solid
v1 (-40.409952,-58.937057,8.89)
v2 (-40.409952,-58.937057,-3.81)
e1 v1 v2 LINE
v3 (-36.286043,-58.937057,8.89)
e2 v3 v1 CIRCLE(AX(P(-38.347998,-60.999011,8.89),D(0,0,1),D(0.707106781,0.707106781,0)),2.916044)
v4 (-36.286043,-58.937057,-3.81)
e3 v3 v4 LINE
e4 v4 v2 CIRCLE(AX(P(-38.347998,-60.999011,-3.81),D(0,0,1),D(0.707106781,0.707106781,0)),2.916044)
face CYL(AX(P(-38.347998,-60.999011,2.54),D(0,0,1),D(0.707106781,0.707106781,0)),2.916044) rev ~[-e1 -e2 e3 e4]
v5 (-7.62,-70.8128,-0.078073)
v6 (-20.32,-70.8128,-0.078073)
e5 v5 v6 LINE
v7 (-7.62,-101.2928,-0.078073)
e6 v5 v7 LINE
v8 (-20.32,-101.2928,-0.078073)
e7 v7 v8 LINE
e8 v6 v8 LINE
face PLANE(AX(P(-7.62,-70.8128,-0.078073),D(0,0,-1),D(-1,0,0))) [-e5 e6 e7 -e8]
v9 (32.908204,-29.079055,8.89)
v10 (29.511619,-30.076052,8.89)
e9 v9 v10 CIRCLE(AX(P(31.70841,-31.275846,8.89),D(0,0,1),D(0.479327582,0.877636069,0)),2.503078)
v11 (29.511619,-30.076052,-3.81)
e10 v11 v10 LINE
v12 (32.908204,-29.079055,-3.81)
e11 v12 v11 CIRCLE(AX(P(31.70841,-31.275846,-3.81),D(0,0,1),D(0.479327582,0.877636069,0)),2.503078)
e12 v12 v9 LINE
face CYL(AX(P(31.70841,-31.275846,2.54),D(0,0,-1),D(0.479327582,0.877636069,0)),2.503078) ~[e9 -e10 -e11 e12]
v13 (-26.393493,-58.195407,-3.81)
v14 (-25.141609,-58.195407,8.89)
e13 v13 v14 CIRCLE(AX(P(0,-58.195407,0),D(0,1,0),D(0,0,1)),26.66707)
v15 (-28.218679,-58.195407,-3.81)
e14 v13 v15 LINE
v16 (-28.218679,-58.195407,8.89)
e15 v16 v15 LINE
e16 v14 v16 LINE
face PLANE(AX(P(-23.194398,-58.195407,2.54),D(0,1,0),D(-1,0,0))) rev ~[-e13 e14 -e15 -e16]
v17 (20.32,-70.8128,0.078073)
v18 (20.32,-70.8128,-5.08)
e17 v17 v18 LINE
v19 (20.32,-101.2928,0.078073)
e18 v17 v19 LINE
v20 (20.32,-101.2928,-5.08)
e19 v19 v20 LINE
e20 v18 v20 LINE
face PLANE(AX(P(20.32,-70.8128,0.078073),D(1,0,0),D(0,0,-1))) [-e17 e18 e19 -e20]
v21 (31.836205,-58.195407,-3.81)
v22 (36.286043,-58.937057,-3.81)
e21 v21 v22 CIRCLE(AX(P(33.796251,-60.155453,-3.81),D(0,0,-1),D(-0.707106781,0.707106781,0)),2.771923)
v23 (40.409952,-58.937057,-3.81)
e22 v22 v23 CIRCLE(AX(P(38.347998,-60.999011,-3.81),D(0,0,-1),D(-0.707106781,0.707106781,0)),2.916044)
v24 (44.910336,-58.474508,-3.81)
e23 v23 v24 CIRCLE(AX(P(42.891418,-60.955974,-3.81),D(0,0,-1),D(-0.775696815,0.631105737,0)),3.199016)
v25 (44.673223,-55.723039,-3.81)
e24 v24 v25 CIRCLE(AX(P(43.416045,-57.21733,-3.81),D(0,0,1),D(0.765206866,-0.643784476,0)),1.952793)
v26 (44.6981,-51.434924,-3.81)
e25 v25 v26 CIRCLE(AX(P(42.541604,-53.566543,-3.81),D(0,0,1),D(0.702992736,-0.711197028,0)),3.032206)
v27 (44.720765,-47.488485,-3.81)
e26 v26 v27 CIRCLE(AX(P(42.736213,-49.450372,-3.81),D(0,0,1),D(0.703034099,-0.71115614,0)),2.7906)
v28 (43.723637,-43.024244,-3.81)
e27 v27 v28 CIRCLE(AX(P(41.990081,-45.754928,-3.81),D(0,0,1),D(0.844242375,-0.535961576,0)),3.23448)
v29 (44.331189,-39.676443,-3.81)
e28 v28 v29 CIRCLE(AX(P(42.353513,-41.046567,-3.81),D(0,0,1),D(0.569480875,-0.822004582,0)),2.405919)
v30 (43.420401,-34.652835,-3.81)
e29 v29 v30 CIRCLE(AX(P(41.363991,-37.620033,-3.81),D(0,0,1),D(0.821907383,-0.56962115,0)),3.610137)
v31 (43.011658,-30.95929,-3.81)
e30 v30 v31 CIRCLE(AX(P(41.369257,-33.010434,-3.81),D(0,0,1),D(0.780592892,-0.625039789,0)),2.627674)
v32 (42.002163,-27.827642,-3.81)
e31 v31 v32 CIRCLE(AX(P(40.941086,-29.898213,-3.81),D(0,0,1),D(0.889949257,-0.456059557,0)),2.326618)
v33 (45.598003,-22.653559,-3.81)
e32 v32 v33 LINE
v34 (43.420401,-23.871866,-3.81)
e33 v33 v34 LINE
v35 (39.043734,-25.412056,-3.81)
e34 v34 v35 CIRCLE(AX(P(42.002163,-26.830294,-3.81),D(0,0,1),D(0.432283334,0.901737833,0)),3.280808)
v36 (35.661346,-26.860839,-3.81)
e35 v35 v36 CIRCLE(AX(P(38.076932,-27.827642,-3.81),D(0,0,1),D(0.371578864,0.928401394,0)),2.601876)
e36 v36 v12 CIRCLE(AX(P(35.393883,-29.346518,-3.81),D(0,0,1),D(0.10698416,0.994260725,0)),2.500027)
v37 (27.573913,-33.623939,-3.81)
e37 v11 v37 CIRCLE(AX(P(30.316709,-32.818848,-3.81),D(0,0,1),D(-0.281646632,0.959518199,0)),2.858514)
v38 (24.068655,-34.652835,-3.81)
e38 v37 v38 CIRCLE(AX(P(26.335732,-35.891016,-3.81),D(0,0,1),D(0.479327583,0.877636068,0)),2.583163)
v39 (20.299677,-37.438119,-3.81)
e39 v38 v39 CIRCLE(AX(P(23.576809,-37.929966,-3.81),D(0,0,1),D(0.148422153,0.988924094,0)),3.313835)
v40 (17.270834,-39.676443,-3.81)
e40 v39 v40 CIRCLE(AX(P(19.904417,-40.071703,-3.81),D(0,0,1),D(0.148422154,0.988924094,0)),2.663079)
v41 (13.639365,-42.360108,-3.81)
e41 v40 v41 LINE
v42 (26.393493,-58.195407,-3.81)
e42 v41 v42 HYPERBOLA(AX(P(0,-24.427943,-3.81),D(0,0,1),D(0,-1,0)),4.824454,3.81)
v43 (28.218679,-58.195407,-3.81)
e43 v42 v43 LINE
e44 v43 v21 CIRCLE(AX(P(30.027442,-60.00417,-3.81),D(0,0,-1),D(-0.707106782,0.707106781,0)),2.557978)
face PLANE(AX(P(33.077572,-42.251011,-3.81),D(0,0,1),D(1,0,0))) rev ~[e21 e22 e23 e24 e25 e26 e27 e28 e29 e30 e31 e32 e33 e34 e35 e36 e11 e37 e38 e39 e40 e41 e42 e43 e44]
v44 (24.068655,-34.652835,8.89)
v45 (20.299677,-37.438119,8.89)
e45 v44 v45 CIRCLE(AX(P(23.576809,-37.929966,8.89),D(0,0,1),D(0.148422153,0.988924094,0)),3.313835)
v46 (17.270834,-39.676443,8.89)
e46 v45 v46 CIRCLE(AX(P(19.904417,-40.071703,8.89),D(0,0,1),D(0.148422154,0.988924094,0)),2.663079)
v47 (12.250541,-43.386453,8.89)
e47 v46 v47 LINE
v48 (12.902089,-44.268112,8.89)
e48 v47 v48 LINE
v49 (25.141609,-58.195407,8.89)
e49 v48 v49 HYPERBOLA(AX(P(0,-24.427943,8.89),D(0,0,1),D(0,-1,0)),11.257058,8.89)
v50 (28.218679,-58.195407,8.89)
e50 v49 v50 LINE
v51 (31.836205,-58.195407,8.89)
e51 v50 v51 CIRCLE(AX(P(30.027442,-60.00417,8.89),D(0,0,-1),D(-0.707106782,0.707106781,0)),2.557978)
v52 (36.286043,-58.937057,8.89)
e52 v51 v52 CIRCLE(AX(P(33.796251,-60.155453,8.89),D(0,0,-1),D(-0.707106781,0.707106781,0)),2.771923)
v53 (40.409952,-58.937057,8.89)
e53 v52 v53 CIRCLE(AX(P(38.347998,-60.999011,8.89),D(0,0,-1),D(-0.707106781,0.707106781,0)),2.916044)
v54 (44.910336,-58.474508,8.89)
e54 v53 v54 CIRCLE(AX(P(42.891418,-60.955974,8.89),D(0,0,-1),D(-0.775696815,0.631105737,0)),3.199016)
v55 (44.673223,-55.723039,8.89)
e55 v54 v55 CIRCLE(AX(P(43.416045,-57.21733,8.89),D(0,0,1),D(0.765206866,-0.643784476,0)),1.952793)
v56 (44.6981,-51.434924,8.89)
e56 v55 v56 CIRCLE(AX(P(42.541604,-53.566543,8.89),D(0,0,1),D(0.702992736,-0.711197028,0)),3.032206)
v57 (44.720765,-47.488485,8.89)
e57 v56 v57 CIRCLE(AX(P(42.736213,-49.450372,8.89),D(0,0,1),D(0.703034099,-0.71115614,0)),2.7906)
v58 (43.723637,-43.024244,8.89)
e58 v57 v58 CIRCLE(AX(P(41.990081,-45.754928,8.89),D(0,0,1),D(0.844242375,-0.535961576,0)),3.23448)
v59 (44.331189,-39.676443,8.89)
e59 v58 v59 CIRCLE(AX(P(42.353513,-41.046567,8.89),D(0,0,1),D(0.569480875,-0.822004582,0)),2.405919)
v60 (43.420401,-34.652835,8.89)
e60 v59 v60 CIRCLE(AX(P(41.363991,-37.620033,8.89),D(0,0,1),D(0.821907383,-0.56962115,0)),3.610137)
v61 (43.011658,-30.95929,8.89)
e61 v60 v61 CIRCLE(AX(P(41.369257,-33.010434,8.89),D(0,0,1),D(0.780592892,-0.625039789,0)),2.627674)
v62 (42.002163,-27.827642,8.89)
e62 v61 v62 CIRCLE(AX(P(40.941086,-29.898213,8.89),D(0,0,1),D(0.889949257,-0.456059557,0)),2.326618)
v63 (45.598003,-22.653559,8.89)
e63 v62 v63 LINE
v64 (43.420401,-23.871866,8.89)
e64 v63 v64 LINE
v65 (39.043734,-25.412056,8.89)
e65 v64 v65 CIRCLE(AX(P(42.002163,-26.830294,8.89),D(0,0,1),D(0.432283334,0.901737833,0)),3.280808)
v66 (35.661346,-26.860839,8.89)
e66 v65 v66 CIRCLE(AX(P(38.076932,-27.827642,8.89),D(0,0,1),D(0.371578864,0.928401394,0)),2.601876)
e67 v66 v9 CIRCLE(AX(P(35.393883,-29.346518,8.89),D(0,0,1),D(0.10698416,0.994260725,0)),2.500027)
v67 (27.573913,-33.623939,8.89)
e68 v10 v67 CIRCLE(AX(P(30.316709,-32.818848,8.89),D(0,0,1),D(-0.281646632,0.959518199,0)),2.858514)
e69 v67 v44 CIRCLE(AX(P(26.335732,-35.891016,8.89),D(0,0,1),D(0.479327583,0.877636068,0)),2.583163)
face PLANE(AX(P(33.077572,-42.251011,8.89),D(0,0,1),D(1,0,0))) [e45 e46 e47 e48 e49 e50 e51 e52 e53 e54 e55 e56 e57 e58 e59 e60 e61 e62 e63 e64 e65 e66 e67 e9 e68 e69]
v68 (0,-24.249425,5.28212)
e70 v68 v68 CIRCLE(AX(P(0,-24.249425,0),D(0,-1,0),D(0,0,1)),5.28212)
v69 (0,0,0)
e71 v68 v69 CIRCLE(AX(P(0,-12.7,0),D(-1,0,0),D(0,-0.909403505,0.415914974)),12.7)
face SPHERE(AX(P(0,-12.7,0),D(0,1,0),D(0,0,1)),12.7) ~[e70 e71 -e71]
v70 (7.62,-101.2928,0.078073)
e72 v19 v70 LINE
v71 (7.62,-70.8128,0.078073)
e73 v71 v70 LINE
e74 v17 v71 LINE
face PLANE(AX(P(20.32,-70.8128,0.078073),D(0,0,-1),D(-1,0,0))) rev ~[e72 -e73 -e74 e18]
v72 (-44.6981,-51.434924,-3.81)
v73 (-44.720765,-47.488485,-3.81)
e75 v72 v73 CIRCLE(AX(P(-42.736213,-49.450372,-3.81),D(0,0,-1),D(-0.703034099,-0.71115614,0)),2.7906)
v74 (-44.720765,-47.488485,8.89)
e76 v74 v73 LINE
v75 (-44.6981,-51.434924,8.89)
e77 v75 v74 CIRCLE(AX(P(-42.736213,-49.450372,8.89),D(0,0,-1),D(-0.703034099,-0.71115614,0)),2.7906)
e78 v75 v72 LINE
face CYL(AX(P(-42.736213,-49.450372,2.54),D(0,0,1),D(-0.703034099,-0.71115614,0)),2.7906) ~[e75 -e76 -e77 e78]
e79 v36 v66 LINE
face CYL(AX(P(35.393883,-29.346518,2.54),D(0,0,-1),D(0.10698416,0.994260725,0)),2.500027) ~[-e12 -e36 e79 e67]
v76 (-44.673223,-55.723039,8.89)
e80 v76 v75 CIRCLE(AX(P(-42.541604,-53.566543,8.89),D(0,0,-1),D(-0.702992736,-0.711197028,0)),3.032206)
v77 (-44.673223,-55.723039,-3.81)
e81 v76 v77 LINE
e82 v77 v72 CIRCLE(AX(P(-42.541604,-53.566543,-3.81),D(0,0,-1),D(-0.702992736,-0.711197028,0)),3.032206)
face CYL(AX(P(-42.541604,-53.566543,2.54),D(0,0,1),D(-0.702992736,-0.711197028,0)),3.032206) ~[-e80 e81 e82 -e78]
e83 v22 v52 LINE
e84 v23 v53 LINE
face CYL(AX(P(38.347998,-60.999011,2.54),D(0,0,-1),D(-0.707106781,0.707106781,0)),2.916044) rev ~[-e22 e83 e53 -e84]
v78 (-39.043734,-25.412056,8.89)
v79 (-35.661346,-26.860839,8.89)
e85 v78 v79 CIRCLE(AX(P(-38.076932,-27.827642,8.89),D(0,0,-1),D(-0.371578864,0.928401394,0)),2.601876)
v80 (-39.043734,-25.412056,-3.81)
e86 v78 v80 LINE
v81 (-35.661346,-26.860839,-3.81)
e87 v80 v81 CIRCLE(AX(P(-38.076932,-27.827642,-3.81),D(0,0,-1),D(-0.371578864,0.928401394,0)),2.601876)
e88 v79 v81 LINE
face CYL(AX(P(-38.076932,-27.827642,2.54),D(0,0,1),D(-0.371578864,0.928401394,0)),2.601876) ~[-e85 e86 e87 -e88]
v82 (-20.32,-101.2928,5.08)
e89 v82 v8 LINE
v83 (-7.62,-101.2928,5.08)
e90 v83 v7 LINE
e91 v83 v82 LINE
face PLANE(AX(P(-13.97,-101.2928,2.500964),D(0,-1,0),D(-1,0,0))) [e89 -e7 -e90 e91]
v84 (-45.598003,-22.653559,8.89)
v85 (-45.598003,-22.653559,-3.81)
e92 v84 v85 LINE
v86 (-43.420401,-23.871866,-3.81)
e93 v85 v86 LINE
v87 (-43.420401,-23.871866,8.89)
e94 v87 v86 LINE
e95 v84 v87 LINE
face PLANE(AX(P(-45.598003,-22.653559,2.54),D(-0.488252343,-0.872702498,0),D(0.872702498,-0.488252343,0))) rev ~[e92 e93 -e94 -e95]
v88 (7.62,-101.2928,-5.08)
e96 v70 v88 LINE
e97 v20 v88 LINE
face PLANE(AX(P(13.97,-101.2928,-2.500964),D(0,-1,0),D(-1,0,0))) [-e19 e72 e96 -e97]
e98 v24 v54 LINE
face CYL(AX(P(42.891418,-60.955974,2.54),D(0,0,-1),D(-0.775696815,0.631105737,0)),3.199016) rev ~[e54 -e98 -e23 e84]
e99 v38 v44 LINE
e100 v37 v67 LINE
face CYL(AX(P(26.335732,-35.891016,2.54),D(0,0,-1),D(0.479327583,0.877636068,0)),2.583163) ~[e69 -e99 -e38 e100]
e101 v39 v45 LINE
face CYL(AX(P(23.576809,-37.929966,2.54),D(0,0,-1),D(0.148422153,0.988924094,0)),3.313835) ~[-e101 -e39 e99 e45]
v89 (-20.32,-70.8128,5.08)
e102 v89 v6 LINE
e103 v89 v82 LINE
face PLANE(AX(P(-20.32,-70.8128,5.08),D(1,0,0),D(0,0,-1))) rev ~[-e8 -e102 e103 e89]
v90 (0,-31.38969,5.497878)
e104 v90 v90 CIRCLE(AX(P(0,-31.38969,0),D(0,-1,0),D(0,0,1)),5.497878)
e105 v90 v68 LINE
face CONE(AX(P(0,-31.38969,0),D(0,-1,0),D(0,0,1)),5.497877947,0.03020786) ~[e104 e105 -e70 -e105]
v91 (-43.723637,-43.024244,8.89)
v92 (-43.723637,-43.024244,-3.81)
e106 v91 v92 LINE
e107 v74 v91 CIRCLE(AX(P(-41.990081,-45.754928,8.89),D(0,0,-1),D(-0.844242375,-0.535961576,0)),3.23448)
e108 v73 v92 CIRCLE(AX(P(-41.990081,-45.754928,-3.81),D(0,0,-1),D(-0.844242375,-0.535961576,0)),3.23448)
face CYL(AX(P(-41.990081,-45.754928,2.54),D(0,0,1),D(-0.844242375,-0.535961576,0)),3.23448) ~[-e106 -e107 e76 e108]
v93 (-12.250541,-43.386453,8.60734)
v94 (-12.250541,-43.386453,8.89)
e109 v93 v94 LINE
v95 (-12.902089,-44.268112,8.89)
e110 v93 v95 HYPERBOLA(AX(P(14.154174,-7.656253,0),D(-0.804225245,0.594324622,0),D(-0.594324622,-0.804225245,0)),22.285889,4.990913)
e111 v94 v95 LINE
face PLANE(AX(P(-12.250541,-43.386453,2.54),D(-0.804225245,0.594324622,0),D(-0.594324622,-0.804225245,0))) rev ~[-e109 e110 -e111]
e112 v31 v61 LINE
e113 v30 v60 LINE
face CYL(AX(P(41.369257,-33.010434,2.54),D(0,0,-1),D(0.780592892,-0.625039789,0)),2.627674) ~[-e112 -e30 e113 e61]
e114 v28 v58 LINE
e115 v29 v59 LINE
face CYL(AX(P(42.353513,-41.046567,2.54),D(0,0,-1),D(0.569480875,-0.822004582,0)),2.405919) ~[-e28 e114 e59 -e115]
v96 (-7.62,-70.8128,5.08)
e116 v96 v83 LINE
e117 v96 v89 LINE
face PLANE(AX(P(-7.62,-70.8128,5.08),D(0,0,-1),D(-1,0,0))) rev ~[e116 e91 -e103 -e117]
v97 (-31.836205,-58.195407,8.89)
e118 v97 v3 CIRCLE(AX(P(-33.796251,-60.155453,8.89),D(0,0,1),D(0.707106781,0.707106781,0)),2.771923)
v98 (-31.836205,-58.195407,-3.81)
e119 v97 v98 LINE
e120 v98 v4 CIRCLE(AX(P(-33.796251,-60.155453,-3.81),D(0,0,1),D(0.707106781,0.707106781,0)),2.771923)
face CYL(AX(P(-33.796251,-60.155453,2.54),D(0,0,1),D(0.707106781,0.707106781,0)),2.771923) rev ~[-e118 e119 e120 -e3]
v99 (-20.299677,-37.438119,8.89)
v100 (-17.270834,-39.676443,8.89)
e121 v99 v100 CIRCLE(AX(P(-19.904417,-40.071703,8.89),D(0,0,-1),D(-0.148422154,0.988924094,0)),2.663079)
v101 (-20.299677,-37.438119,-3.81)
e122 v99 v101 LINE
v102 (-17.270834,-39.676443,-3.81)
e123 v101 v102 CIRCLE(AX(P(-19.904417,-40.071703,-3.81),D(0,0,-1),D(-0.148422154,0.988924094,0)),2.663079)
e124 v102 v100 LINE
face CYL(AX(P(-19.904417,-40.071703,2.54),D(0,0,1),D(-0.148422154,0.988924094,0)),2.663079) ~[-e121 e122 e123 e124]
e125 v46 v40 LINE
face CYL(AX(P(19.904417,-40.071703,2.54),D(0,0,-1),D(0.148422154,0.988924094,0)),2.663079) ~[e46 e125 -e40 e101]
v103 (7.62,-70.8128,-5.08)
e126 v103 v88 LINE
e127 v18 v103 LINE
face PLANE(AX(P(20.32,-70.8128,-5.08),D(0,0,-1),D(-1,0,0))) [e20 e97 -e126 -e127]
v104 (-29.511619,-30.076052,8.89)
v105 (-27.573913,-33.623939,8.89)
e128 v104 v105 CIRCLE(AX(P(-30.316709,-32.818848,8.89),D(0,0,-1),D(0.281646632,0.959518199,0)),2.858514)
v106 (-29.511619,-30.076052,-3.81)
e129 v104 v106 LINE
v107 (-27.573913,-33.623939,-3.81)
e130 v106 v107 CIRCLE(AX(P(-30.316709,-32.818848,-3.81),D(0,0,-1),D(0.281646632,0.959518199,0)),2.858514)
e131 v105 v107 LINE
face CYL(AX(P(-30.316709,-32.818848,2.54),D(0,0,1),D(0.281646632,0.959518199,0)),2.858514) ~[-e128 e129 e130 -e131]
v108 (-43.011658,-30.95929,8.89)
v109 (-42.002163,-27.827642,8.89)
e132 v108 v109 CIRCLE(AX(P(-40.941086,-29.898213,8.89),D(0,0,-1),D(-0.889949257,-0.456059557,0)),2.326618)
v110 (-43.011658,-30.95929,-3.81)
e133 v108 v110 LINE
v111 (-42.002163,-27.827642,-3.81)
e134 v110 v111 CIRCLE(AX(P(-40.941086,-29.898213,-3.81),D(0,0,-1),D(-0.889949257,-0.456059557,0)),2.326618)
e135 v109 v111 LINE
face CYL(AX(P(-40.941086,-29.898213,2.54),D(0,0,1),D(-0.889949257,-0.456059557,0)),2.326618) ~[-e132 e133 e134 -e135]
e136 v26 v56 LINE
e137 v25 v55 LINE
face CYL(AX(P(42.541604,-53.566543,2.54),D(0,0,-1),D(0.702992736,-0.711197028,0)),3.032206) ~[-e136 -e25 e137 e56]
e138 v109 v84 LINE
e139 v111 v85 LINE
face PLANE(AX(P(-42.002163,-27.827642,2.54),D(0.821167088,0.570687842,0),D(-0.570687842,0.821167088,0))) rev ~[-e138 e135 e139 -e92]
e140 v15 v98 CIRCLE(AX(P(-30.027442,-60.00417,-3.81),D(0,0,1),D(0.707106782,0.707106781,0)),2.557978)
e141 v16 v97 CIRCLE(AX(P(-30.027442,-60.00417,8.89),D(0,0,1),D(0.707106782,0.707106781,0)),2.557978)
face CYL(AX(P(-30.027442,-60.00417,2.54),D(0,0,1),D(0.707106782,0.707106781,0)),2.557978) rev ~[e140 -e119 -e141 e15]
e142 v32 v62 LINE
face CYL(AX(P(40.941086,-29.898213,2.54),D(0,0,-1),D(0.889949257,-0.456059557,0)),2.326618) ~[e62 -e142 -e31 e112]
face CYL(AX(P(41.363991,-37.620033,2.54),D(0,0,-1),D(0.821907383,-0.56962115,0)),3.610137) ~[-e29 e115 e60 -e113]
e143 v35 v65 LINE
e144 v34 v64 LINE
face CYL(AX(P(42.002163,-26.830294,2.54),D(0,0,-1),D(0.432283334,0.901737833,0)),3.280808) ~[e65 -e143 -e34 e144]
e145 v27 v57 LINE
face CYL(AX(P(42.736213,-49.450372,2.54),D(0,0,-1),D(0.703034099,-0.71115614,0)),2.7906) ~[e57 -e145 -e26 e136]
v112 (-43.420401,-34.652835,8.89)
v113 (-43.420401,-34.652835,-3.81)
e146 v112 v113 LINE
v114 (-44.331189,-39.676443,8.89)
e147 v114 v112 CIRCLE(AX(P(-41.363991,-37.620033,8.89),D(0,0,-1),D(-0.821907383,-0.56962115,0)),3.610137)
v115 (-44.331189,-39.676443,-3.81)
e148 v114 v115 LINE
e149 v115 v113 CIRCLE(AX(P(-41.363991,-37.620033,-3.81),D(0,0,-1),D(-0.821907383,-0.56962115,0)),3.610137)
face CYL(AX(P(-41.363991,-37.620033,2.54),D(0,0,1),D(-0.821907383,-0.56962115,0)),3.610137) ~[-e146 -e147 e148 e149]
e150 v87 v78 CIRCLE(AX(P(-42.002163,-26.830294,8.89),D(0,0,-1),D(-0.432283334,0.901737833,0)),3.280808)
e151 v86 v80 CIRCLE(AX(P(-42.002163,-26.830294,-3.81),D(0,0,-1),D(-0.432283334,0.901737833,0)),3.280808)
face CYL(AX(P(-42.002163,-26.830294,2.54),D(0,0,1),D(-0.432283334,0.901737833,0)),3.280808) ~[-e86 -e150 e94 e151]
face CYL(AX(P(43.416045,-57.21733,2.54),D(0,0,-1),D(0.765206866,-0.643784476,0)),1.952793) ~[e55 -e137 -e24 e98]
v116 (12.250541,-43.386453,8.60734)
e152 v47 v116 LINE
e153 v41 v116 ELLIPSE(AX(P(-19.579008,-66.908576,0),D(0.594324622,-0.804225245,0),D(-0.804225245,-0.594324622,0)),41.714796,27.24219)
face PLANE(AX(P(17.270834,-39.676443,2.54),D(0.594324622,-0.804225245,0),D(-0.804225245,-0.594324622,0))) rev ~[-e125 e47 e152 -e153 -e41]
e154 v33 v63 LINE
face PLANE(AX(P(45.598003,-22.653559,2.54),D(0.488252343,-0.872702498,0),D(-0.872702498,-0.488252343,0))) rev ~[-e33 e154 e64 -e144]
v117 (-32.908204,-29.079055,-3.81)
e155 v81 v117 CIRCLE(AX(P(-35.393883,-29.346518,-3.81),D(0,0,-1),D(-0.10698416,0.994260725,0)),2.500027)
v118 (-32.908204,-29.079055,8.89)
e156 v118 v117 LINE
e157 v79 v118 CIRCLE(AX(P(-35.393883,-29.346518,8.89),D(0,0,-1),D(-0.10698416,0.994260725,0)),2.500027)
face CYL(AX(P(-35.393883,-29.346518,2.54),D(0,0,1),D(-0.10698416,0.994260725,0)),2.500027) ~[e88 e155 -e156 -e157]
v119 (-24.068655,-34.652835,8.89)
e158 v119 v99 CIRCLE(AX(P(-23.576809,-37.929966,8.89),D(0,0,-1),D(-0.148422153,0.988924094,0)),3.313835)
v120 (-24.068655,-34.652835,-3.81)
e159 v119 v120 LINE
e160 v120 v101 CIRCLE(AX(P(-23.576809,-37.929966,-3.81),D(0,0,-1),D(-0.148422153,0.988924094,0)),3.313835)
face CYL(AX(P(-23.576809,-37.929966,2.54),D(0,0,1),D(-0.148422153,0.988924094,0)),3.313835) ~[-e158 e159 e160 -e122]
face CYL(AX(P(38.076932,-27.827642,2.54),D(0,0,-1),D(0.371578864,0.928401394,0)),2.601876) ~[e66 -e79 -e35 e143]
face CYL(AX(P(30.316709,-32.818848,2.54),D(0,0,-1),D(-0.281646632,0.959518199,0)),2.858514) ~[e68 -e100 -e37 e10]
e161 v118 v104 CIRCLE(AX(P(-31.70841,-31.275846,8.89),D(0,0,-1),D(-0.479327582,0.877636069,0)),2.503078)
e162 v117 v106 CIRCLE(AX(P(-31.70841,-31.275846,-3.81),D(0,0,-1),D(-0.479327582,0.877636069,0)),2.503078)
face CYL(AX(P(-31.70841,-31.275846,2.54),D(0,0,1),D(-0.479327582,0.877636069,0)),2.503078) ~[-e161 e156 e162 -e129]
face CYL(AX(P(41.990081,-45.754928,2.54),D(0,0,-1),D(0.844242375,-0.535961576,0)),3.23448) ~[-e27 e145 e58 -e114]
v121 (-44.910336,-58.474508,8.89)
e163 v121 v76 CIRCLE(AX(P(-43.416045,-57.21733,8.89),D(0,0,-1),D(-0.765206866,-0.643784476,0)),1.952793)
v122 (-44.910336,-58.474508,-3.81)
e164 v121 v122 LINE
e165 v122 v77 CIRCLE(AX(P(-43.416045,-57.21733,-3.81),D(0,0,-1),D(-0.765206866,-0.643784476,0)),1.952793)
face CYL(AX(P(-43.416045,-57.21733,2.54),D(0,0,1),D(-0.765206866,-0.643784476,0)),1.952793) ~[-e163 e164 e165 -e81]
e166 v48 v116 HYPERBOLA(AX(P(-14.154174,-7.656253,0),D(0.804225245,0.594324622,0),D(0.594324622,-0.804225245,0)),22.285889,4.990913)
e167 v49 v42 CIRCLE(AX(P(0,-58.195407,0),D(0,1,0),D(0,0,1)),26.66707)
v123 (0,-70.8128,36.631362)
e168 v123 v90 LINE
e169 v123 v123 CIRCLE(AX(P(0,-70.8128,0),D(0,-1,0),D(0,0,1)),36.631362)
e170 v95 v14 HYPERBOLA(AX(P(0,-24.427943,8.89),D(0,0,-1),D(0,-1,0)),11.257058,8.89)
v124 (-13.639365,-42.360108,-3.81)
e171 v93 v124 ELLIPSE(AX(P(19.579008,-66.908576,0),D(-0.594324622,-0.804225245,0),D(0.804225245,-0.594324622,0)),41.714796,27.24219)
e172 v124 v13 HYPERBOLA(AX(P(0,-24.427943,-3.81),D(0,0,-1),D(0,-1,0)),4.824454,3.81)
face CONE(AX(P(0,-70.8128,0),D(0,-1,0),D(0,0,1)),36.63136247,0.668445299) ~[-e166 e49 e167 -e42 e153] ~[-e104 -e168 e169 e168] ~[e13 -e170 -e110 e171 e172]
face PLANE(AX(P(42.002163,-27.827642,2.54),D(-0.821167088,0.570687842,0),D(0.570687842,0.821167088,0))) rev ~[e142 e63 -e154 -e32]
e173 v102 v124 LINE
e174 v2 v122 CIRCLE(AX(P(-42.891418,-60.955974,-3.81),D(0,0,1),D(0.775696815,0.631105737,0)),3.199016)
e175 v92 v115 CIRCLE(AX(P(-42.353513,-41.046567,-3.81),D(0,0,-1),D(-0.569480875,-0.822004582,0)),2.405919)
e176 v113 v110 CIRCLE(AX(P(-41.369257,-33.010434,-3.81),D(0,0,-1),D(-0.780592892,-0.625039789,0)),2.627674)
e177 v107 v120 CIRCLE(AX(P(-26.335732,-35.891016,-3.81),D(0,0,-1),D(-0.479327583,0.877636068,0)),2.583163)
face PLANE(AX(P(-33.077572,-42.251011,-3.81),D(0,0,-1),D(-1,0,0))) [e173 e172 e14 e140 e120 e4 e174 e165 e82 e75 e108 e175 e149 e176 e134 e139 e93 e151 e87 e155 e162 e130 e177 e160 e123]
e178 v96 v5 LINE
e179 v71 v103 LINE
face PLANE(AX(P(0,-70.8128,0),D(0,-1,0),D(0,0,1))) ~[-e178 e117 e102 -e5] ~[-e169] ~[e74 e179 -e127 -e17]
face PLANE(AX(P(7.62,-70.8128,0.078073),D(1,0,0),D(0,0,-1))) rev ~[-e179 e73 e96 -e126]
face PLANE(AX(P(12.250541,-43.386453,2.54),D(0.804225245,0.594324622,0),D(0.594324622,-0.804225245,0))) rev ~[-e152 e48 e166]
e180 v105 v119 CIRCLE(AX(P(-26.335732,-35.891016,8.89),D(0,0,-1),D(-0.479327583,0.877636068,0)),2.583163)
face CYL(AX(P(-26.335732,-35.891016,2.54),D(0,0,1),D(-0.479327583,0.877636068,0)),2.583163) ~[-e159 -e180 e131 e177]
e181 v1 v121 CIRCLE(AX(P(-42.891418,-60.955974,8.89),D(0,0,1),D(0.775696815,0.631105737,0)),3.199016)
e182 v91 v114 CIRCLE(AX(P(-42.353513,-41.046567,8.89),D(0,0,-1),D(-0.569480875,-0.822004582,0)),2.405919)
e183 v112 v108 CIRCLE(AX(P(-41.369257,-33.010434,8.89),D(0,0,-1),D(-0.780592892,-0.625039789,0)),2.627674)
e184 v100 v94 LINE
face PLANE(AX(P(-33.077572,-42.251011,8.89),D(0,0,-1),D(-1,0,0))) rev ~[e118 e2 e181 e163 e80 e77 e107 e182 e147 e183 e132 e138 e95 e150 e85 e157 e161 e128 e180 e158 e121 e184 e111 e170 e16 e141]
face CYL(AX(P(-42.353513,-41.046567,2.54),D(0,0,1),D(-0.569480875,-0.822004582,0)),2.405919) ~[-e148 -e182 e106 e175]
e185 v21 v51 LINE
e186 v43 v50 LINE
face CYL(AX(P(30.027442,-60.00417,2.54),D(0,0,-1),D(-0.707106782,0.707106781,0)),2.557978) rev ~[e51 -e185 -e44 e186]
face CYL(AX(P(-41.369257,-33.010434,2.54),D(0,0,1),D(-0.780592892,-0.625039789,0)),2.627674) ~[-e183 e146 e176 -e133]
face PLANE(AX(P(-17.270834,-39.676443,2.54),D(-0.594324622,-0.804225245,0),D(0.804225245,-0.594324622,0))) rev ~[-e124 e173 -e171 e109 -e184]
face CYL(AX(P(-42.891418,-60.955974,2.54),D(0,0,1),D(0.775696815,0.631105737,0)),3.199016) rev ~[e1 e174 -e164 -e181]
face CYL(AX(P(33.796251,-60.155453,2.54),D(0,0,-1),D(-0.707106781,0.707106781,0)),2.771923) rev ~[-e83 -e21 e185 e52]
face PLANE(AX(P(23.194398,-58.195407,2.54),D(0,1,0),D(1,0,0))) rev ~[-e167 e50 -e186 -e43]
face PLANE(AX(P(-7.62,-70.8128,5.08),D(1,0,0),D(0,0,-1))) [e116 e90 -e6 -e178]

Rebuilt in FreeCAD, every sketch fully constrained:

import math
import FreeCAD as App
import Part
import Sketcher

V = App.Vector
Q = App.Units.Quantity


def add_polygon(sketch, points):
    """Adds a closed chain of lines whose ends are joined by coincident constraints."""
    first, n = sketch.GeometryCount, len(points)
    for a, b in zip(points, points[1:] + points[:1]):
        sketch.addGeometry(Part.LineSegment(App.Vector(*a, 0), App.Vector(*b, 0)), False)
    for i in range(n):
        sketch.addConstraint(Sketcher.Constraint("Coincident", first + i, 2, first + (i + 1) % n, 1))

doc = App.newDocument("Part")
params = doc.addObject("Spreadsheet::Sheet", "Params")
for row, (alias, value) in enumerate([
    ("sketch1_radius", "0.5 in"),
    ("revolution_angle", "360 deg"),
    ("sketch2_width", "0.5 in"),
    ("pad1_length", "1.2 in"),
    ("pad2_length", "0.5 in"),
], start=1):
    params.set(f"A{row}", alias)
    params.set(f"B{row}", "=" + value)
    params.setAlias(f"B{row}", alias)

body = doc.addObject("PartDesign::Body", "Body")

# Sketch on XY plane
sketch1 = body.newObject("Sketcher::SketchObject", "Sketch")
sketch1.AttachmentSupport = (doc.getObject("XY_Plane"), [""])
sketch1.MapMode = "FlatFace"
sketch1.addGeometry(Part.LineSegment(V(5.497878, -31.38969, 0), V(5.28212, -24.249425, 0)), False)
sketch1.addGeometry(Part.ArcOfCircle(Part.Circle(V(0, -12.7, 0), V(0, 0, 1), 12.7), math.radians(-65.42305), math.radians(90)), False)
sketch1.addGeometry(Part.LineSegment(V(0, 0, 0), V(0, -70.8128, 0)), False)
sketch1.addGeometry(Part.LineSegment(V(0, -70.8128, 0), V(36.631362, -70.8128, 0)), False)
sketch1.addGeometry(Part.LineSegment(V(36.631362, -70.8128, 0), V(5.497878, -31.38969, 0)), False)
sketch1.addConstraint(Sketcher.Constraint("Coincident", 0, 2, 1, 1))
sketch1.addConstraint(Sketcher.Constraint("Coincident", 1, 2, 2, 1))
sketch1.addConstraint(Sketcher.Constraint("Coincident", 2, 2, 3, 1))
sketch1.addConstraint(Sketcher.Constraint("Coincident", 3, 2, 4, 1))
sketch1.addConstraint(Sketcher.Constraint("Coincident", 4, 2, 0, 1))
sketch1.addConstraint(Sketcher.Constraint("Vertical", 2))
sketch1.addConstraint(Sketcher.Constraint("Horizontal", 3))
sketch1.addConstraint(Sketcher.Constraint("Coincident", 1, 2, -1, 1))
sketch1.addConstraint(Sketcher.Constraint("PointOnObject", 1, 3, -2))
sketch1.addConstraint(Sketcher.Constraint("Radius", 1, Q("0.5 in")))
sketch1.addConstraint(Sketcher.Constraint("DistanceY", 2, 2, 2, 1, 70.8128))
sketch1.addConstraint(Sketcher.Constraint("DistanceX", 3, 1, 3, 2, 36.631362))
sketch1.addConstraint(Sketcher.Constraint("DistanceX", -1, 1, 0, 2, 5.28212))
sketch1.addConstraint(Sketcher.Constraint("DistanceY", 4, 2, -1, 1, 31.38969))
sketch1.addConstraint(Sketcher.Constraint("Distance", 0, 7.143525))
sketch1.setExpression("Constraints[9]", "Params.sketch1_radius")
revolution = body.newObject("PartDesign::Revolution", "Revolution")
revolution.Profile = sketch1
revolution.ReferenceAxis = (sketch1, ["V_Axis"])
revolution.setExpression("Angle", "Params.revolution_angle")

# Sketch on XZ plane
sketch2 = body.newObject("Sketcher::SketchObject", "Sketch001")
sketch2.AttachmentSupport = (doc.getObject("XZ_Plane"), [""])
sketch2.MapMode = "FlatFace"
sketch2.AttachmentOffset = App.Placement(V(0, 0, 70.8128), App.Rotation())
add_polygon(sketch2, [(-7.62, -0.078073), (-7.62, 5.08), (-20.32, 5.08), (-20.32, -0.078073)])  # lines 0-3
add_polygon(sketch2, [(20.32, -5.08), (20.32, 0.078073), (7.62, 0.078073), (7.62, -5.08)])  # lines 4-7
sketch2.addConstraint(Sketcher.Constraint("Vertical", 0))
sketch2.addConstraint(Sketcher.Constraint("Horizontal", 1))
sketch2.addConstraint(Sketcher.Constraint("Vertical", 2))
sketch2.addConstraint(Sketcher.Constraint("Horizontal", 3))
sketch2.addConstraint(Sketcher.Constraint("Vertical", 4))
sketch2.addConstraint(Sketcher.Constraint("Horizontal", 5))
sketch2.addConstraint(Sketcher.Constraint("Vertical", 6))
sketch2.addConstraint(Sketcher.Constraint("Horizontal", 7))
sketch2.addConstraint(Sketcher.Constraint("Symmetric", 2, 2, 4, 2, -1, 1))
sketch2.addConstraint(Sketcher.Constraint("Symmetric", 0, 2, 6, 2, -1, 1))
sketch2.addConstraint(Sketcher.Constraint("DistanceX", 1, 2, 1, 1, Q("0.5 in")))
sketch2.addConstraint(Sketcher.Constraint("DistanceX", 0, 2, -1, 1, Q("0.3 in")))
sketch2.addConstraint(Sketcher.Constraint("DistanceY", -1, 1, 0, 2, Q("0.2 in")))
sketch2.addConstraint(Sketcher.Constraint("DistanceY", 0, 1, 0, 2, 5.158073))
sketch2.setExpression("Constraints[18]", "Params.sketch2_width")
pad1 = body.newObject("PartDesign::Pad", "Pad")
pad1.Profile = sketch2
pad1.setExpression("Length", "Params.pad1_length")

# Sketch on XY plane
sketch3 = body.newObject("Sketcher::SketchObject", "Sketch002")
sketch3.AttachmentSupport = (doc.getObject("XY_Plane"), [""])
sketch3.MapMode = "FlatFace"
sketch3.AttachmentOffset = App.Placement(V(0, 0, 0.1 * 25.4), App.Rotation())
sketch3.addGeometry(Part.LineSegment(V(23.194398, -58.195407, 0), V(28.218679, -58.195407, 0)), False)
sketch3.addGeometry(Part.ArcOfCircle(Part.Circle(V(30.027442, -60.00417, 0), V(0, 0, 1), 2.557978), math.radians(45), math.radians(135)), False)
sketch3.addGeometry(Part.ArcOfCircle(Part.Circle(V(33.796251, -60.155453, 0), V(0, 0, 1), 2.771923), math.radians(26.075108), math.radians(135)), False)
sketch3.addGeometry(Part.ArcOfCircle(Part.Circle(V(38.347998, -60.999011, 0), V(0, 0, 1), 2.916044), math.radians(45), math.radians(135)), False)
sketch3.addGeometry(Part.ArcOfCircle(Part.Circle(V(42.891418, -60.955974, 0), V(0, 0, 1), 3.199016), math.radians(50.868251), math.radians(140.868251)), False)
sketch3.addGeometry(Part.ArcOfCircle(Part.Circle(V(43.416045, -57.21733, 0), V(0, 0, 1), 1.952793), math.radians(-40.074601), math.radians(49.925399)), False)
sketch3.addGeometry(Part.ArcOfCircle(Part.Circle(V(42.541604, -53.566543, 0), V(0, 0, 1), 3.032206), math.radians(-45.332392), math.radians(44.667607)), False)
sketch3.addGeometry(Part.ArcOfCircle(Part.Circle(V(42.736213, -49.450372, 0), V(0, 0, 1), 2.7906), math.radians(-45.32906), math.radians(44.67094)), False)
sketch3.addGeometry(Part.ArcOfCircle(Part.Circle(V(41.990081, -45.754928, 0), V(0, 0, 1), 3.23448), math.radians(-32.409147), math.radians(57.590853)), False)
sketch3.addGeometry(Part.ArcOfCircle(Part.Circle(V(42.353513, -41.046567, 0), V(0, 0, 1), 2.405919), math.radians(-55.285966), math.radians(34.714034)), False)
sketch3.addGeometry(Part.ArcOfCircle(Part.Circle(V(41.363991, -37.620033, 0), V(0, 0, 1), 3.610137), math.radians(-34.723812), math.radians(55.276188)), False)
sketch3.addGeometry(Part.ArcOfCircle(Part.Circle(V(41.369257, -33.010434, 0), V(0, 0, 1), 2.627674), math.radians(-38.685108), math.radians(51.314892)), False)
sketch3.addGeometry(Part.ArcOfCircle(Part.Circle(V(40.941086, -29.898213, 0), V(0, 0, 1), 2.326618), math.radians(-27.133129), math.radians(62.866871)), False)
sketch3.addGeometry(Part.LineSegment(V(42.002163, -27.827642, 0), V(45.598003, -22.653559, 0)), False)
sketch3.addGeometry(Part.LineSegment(V(45.598003, -22.653559, 0), V(43.420401, -23.871866, 0)), False)
sketch3.addGeometry(Part.ArcOfCircle(Part.Circle(V(42.002163, -26.830294, 0), V(0, 0, 1), 3.280808), math.radians(64.387446), math.radians(154.387446)), False)
sketch3.addGeometry(Part.ArcOfCircle(Part.Circle(V(38.076932, -27.827642, 0), V(0, 0, 1), 2.601876), math.radians(68.186977), math.radians(158.186977)), False)
sketch3.addGeometry(Part.ArcOfCircle(Part.Circle(V(35.393883, -29.346518, 0), V(0, 0, 1), 2.500027), math.radians(83.858505), math.radians(173.858505)), False)
sketch3.addGeometry(Part.ArcOfCircle(Part.Circle(V(31.70841, -31.275846, 0), V(0, 0, 1), 2.503078), math.radians(61.358505), math.radians(151.358505)), False)
sketch3.addGeometry(Part.ArcOfCircle(Part.Circle(V(30.316709, -32.818848, 0), V(0, 0, 1), 2.858514), math.radians(106.358505), math.radians(196.358505)), False)
sketch3.addGeometry(Part.ArcOfCircle(Part.Circle(V(26.335732, -35.891016, 0), V(0, 0, 1), 2.583163), math.radians(61.358505), math.radians(151.358505)), False)
sketch3.addGeometry(Part.ArcOfCircle(Part.Circle(V(23.576809, -37.929966, 0), V(0, 0, 1), 3.313835), math.radians(81.464501), math.radians(171.464501)), False)
sketch3.addGeometry(Part.ArcOfCircle(Part.Circle(V(19.904417, -40.071703, 0), V(0, 0, 1), 2.663079), math.radians(81.464501), math.radians(171.464501)), False)
sketch3.addGeometry(Part.LineSegment(V(17.270834, -39.676443, 0), V(12.250541, -43.386453, 0)), False)
sketch3.addGeometry(Part.LineSegment(V(12.250541, -43.386453, 0), V(23.194398, -58.195407, 0)), False)
sketch3.addGeometry(Part.LineSegment(V(-28.218679, -58.195407, 0), V(-23.194398, -58.195407, 0)), False)
sketch3.addGeometry(Part.LineSegment(V(-23.194398, -58.195407, 0), V(-12.250541, -43.386453, 0)), False)
sketch3.addGeometry(Part.LineSegment(V(-12.250541, -43.386453, 0), V(-17.270834, -39.676443, 0)), False)
sketch3.addGeometry(Part.ArcOfCircle(Part.Circle(V(-19.904417, -40.071703, 0), V(0, 0, 1), 2.663079), math.radians(8.535499), math.radians(98.535499)), False)
sketch3.addGeometry(Part.ArcOfCircle(Part.Circle(V(-23.576809, -37.929966, 0), V(0, 0, 1), 3.313835), math.radians(8.535499), math.radians(98.535499)), False)
sketch3.addGeometry(Part.ArcOfCircle(Part.Circle(V(-26.335732, -35.891016, 0), V(0, 0, 1), 2.583163), math.radians(28.641495), math.radians(118.641495)), False)
sketch3.addGeometry(Part.ArcOfCircle(Part.Circle(V(-30.316709, -32.818848, 0), V(0, 0, 1), 2.858514), math.radians(-16.358505), math.radians(73.641495)), False)
sketch3.addGeometry(Part.ArcOfCircle(Part.Circle(V(-31.70841, -31.275846, 0), V(0, 0, 1), 2.503078), math.radians(28.641495), math.radians(118.641495)), False)
sketch3.addGeometry(Part.ArcOfCircle(Part.Circle(V(-35.393883, -29.346518, 0), V(0, 0, 1), 2.500027), math.radians(6.141495), math.radians(96.141495)), False)
sketch3.addGeometry(Part.ArcOfCircle(Part.Circle(V(-38.076932, -27.827642, 0), V(0, 0, 1), 2.601876), math.radians(21.813023), math.radians(111.813023)), False)
sketch3.addGeometry(Part.ArcOfCircle(Part.Circle(V(-42.002163, -26.830294, 0), V(0, 0, 1), 3.280808), math.radians(25.612554), math.radians(115.612554)), False)
sketch3.addGeometry(Part.LineSegment(V(-43.420401, -23.871866, 0), V(-45.598003, -22.653559, 0)), False)
sketch3.addGeometry(Part.LineSegment(V(-45.598003, -22.653559, 0), V(-42.002163, -27.827642, 0)), False)
sketch3.addGeometry(Part.ArcOfCircle(Part.Circle(V(-40.941086, -29.898213, 0), V(0, 0, 1), 2.326618), math.radians(117.133129), math.radians(207.133129)), False)
sketch3.addGeometry(Part.ArcOfCircle(Part.Circle(V(-41.369257, -33.010434, 0), V(0, 0, 1), 2.627674), math.radians(128.685108), math.radians(218.685108)), False)
sketch3.addGeometry(Part.ArcOfCircle(Part.Circle(V(-41.363991, -37.620033, 0), V(0, 0, 1), 3.610137), math.radians(124.723812), math.radians(214.723812)), False)
sketch3.addGeometry(Part.ArcOfCircle(Part.Circle(V(-42.353513, -41.046567, 0), V(0, 0, 1), 2.405919), math.radians(145.285966), math.radians(235.285966)), False)
sketch3.addGeometry(Part.ArcOfCircle(Part.Circle(V(-41.990081, -45.754928, 0), V(0, 0, 1), 3.23448), math.radians(122.409147), math.radians(212.409147)), False)
sketch3.addGeometry(Part.ArcOfCircle(Part.Circle(V(-42.736213, -49.450372, 0), V(0, 0, 1), 2.7906), math.radians(135.32906), math.radians(225.32906)), False)
sketch3.addGeometry(Part.ArcOfCircle(Part.Circle(V(-42.541604, -53.566543, 0), V(0, 0, 1), 3.032206), math.radians(135.332393), math.radians(225.332392)), False)
sketch3.addGeometry(Part.ArcOfCircle(Part.Circle(V(-43.416045, -57.21733, 0), V(0, 0, 1), 1.952793), math.radians(130.074601), math.radians(220.074601)), False)
sketch3.addGeometry(Part.ArcOfCircle(Part.Circle(V(-42.891418, -60.955974, 0), V(0, 0, 1), 3.199016), math.radians(39.131749), math.radians(129.131749)), False)
sketch3.addGeometry(Part.ArcOfCircle(Part.Circle(V(-38.347998, -60.999011, 0), V(0, 0, 1), 2.916044), math.radians(45), math.radians(135)), False)
sketch3.addGeometry(Part.ArcOfCircle(Part.Circle(V(-33.796251, -60.155453, 0), V(0, 0, 1), 2.771923), math.radians(45), math.radians(153.924892)), False)
sketch3.addGeometry(Part.ArcOfCircle(Part.Circle(V(-30.027442, -60.00417, 0), V(0, 0, 1), 2.557978), math.radians(45), math.radians(135)), False)
sketch3.addConstraint(Sketcher.Constraint("Coincident", 0, 2, 1, 2))
sketch3.addConstraint(Sketcher.Constraint("Coincident", 1, 1, 2, 2))
sketch3.addConstraint(Sketcher.Constraint("Coincident", 2, 1, 3, 2))
sketch3.addConstraint(Sketcher.Constraint("Coincident", 3, 1, 4, 2))
sketch3.addConstraint(Sketcher.Constraint("Coincident", 4, 1, 5, 1))
sketch3.addConstraint(Sketcher.Constraint("Coincident", 5, 2, 6, 1))
sketch3.addConstraint(Sketcher.Constraint("Coincident", 6, 2, 7, 1))
sketch3.addConstraint(Sketcher.Constraint("Coincident", 7, 2, 8, 1))
sketch3.addConstraint(Sketcher.Constraint("Coincident", 8, 2, 9, 1))
sketch3.addConstraint(Sketcher.Constraint("Coincident", 9, 2, 10, 1))
sketch3.addConstraint(Sketcher.Constraint("Coincident", 10, 2, 11, 1))
sketch3.addConstraint(Sketcher.Constraint("Coincident", 11, 2, 12, 1))
sketch3.addConstraint(Sketcher.Constraint("Coincident", 12, 2, 13, 1))
sketch3.addConstraint(Sketcher.Constraint("Coincident", 13, 2, 14, 1))
sketch3.addConstraint(Sketcher.Constraint("Coincident", 14, 2, 15, 1))
sketch3.addConstraint(Sketcher.Constraint("Coincident", 15, 2, 16, 1))
sketch3.addConstraint(Sketcher.Constraint("Coincident", 16, 2, 17, 1))
sketch3.addConstraint(Sketcher.Constraint("Coincident", 17, 2, 18, 1))
sketch3.addConstraint(Sketcher.Constraint("Coincident", 18, 2, 19, 1))
sketch3.addConstraint(Sketcher.Constraint("Coincident", 19, 2, 20, 1))
sketch3.addConstraint(Sketcher.Constraint("Coincident", 20, 2, 21, 1))
sketch3.addConstraint(Sketcher.Constraint("Coincident", 21, 2, 22, 1))
sketch3.addConstraint(Sketcher.Constraint("Coincident", 22, 2, 23, 1))
sketch3.addConstraint(Sketcher.Constraint("Coincident", 23, 2, 24, 1))
sketch3.addConstraint(Sketcher.Constraint("Coincident", 24, 2, 0, 1))
sketch3.addConstraint(Sketcher.Constraint("Coincident", 25, 2, 26, 1))
sketch3.addConstraint(Sketcher.Constraint("Coincident", 26, 2, 27, 1))
sketch3.addConstraint(Sketcher.Constraint("Coincident", 27, 2, 28, 1))
sketch3.addConstraint(Sketcher.Constraint("Coincident", 28, 2, 29, 1))
sketch3.addConstraint(Sketcher.Constraint("Coincident", 29, 2, 30, 1))
sketch3.addConstraint(Sketcher.Constraint("Coincident", 30, 2, 31, 1))
sketch3.addConstraint(Sketcher.Constraint("Coincident", 31, 2, 32, 1))
sketch3.addConstraint(Sketcher.Constraint("Coincident", 32, 2, 33, 1))
sketch3.addConstraint(Sketcher.Constraint("Coincident", 33, 2, 34, 1))
sketch3.addConstraint(Sketcher.Constraint("Coincident", 34, 2, 35, 1))
sketch3.addConstraint(Sketcher.Constraint("Coincident", 35, 2, 36, 1))
sketch3.addConstraint(Sketcher.Constraint("Coincident", 36, 2, 37, 1))
sketch3.addConstraint(Sketcher.Constraint("Coincident", 37, 2, 38, 1))
sketch3.addConstraint(Sketcher.Constraint("Coincident", 38, 2, 39, 1))
sketch3.addConstraint(Sketcher.Constraint("Coincident", 39, 2, 40, 1))
sketch3.addConstraint(Sketcher.Constraint("Coincident", 40, 2, 41, 1))
sketch3.addConstraint(Sketcher.Constraint("Coincident", 41, 2, 42, 1))
sketch3.addConstraint(Sketcher.Constraint("Coincident", 42, 2, 43, 1))
sketch3.addConstraint(Sketcher.Constraint("Coincident", 43, 2, 44, 1))
sketch3.addConstraint(Sketcher.Constraint("Coincident", 44, 2, 45, 1))
sketch3.addConstraint(Sketcher.Constraint("Coincident", 45, 2, 46, 2))
sketch3.addConstraint(Sketcher.Constraint("Coincident", 46, 1, 47, 2))
sketch3.addConstraint(Sketcher.Constraint("Coincident", 47, 1, 48, 2))
sketch3.addConstraint(Sketcher.Constraint("Coincident", 48, 1, 49, 2))
sketch3.addConstraint(Sketcher.Constraint("Coincident", 49, 1, 25, 1))
sketch3.addConstraint(Sketcher.Constraint("Horizontal", 0))
sketch3.addConstraint(Sketcher.Constraint("Horizontal", 25))
sketch3.addConstraint(Sketcher.Constraint("Equal", 22, 28))
sketch3.addConstraint(Sketcher.Constraint("Equal", 21, 29))
sketch3.addConstraint(Sketcher.Constraint("Equal", 20, 30))
sketch3.addConstraint(Sketcher.Constraint("Equal", 19, 31))
sketch3.addConstraint(Sketcher.Constraint("Equal", 18, 32))
sketch3.addConstraint(Sketcher.Constraint("Equal", 17, 33))
sketch3.addConstraint(Sketcher.Constraint("Equal", 16, 34))
sketch3.addConstraint(Sketcher.Constraint("Equal", 15, 35))
sketch3.addConstraint(Sketcher.Constraint("Equal", 12, 38))
sketch3.addConstraint(Sketcher.Constraint("Equal", 11, 39))
sketch3.addConstraint(Sketcher.Constraint("Equal", 10, 40))
sketch3.addConstraint(Sketcher.Constraint("Equal", 9, 41))
sketch3.addConstraint(Sketcher.Constraint("Equal", 8, 42))
sketch3.addConstraint(Sketcher.Constraint("Equal", 7, 43))
sketch3.addConstraint(Sketcher.Constraint("Equal", 6, 44))
sketch3.addConstraint(Sketcher.Constraint("Equal", 5, 45))
sketch3.addConstraint(Sketcher.Constraint("Equal", 4, 46))
sketch3.addConstraint(Sketcher.Constraint("Equal", 3, 47))
sketch3.addConstraint(Sketcher.Constraint("Equal", 2, 48))
sketch3.addConstraint(Sketcher.Constraint("Equal", 1, 49))
sketch3.addConstraint(Sketcher.Constraint("Symmetric", 22, 3, 28, 3, -2))
sketch3.addConstraint(Sketcher.Constraint("Symmetric", 21, 3, 29, 3, -2))
sketch3.addConstraint(Sketcher.Constraint("Symmetric", 20, 3, 30, 3, -2))
sketch3.addConstraint(Sketcher.Constraint("Symmetric", 19, 3, 31, 3, -2))
sketch3.addConstraint(Sketcher.Constraint("Symmetric", 18, 3, 32, 3, -2))
sketch3.addConstraint(Sketcher.Constraint("Symmetric", 17, 3, 33, 3, -2))
sketch3.addConstraint(Sketcher.Constraint("Symmetric", 16, 3, 34, 3, -2))
sketch3.addConstraint(Sketcher.Constraint("Symmetric", 15, 3, 35, 3, -2))
sketch3.addConstraint(Sketcher.Constraint("Symmetric", 12, 3, 38, 3, -2))
sketch3.addConstraint(Sketcher.Constraint("Symmetric", 11, 3, 39, 3, -2))
sketch3.addConstraint(Sketcher.Constraint("Symmetric", 10, 3, 40, 3, -2))
sketch3.addConstraint(Sketcher.Constraint("Symmetric", 9, 3, 41, 3, -2))
sketch3.addConstraint(Sketcher.Constraint("Symmetric", 8, 3, 42, 3, -2))
sketch3.addConstraint(Sketcher.Constraint("Symmetric", 7, 3, 43, 3, -2))
sketch3.addConstraint(Sketcher.Constraint("Symmetric", 6, 3, 44, 3, -2))
sketch3.addConstraint(Sketcher.Constraint("Symmetric", 5, 3, 45, 3, -2))
sketch3.addConstraint(Sketcher.Constraint("Symmetric", 4, 3, 46, 3, -2))
sketch3.addConstraint(Sketcher.Constraint("Symmetric", 3, 3, 47, 3, -2))
sketch3.addConstraint(Sketcher.Constraint("Symmetric", 2, 3, 48, 3, -2))
sketch3.addConstraint(Sketcher.Constraint("Symmetric", 1, 3, 49, 3, -2))
sketch3.addConstraint(Sketcher.Constraint("Symmetric", 24, 2, 25, 2, -2))
sketch3.addConstraint(Sketcher.Constraint("Symmetric", 23, 2, 26, 2, -2))
sketch3.addConstraint(Sketcher.Constraint("Symmetric", 13, 2, 36, 2, -2))
sketch3.addConstraint(Sketcher.Constraint("Perpendicular", 23, 24))
sketch3.addConstraint(Sketcher.Constraint("Perpendicular", 26, 27))
sketch3.addConstraint(Sketcher.Constraint("Horizontal", 0, 2, 1, 1))
sketch3.addConstraint(Sketcher.Constraint("Horizontal", 2, 1, 3, 1))
sketch3.addConstraint(Sketcher.Constraint("Horizontal", 34, 3, 12, 2))
sketch3.addConstraint(Sketcher.Constraint("Horizontal", 10, 2, 20, 2))
sketch3.addConstraint(Sketcher.Constraint("Horizontal", 9, 2, 22, 2))
sketch3.addConstraint(Sketcher.Constraint("Horizontal", 14, 2, 35, 2))
sketch3.addConstraint(Sketcher.Constraint("Horizontal", 12, 2, 37, 2))
sketch3.addConstraint(Sketcher.Constraint("Vertical", 15, 3, 12, 2))
sketch3.addConstraint(Sketcher.Constraint("Vertical", 10, 2, 14, 2))
sketch3.addConstraint(Sketcher.Constraint("Radius", 7, 2.7906))
sketch3.addConstraint(Sketcher.Constraint("Radius", 8, 3.23448))
sketch3.addConstraint(Sketcher.Constraint("Radius", 9, 2.405919))
sketch3.addConstraint(Sketcher.Constraint("Radius", 22, 2.663079))
sketch3.addConstraint(Sketcher.Constraint("DistanceX", -1, 1, 21, 2, Q("0.7991999 in")))
sketch3.addConstraint(Sketcher.Constraint("Radius", 1, 2.557978))
sketch3.addConstraint(Sketcher.Constraint("Radius", 2, 2.771923))
sketch3.addConstraint(Sketcher.Constraint("Radius", 3, 2.916044))
sketch3.addConstraint(Sketcher.Constraint("Radius", 4, 3.199016))
sketch3.addConstraint(Sketcher.Constraint("Radius", 5, 1.952793))
sketch3.addConstraint(Sketcher.Constraint("Radius", 6, 3.032206))
sketch3.addConstraint(Sketcher.Constraint("Radius", 10, 3.610137))
sketch3.addConstraint(Sketcher.Constraint("Radius", 11, 2.627674))
sketch3.addConstraint(Sketcher.Constraint("Radius", 12, 2.326618))
sketch3.addConstraint(Sketcher.Constraint("Radius", 15, 3.280808))
sketch3.addConstraint(Sketcher.Constraint("Radius", 16, 2.601876))
sketch3.addConstraint(Sketcher.Constraint("Radius", 17, 2.500027))
sketch3.addConstraint(Sketcher.Constraint("Radius", 18, 2.503078))
sketch3.addConstraint(Sketcher.Constraint("Radius", 19, 2.858514))
sketch3.addConstraint(Sketcher.Constraint("Radius", 20, 2.583163))
sketch3.addConstraint(Sketcher.Constraint("Radius", 21, 3.313835))
sketch3.addConstraint(Sketcher.Constraint("DistanceX", 0, 1, 0, 2, 5.024281))
sketch3.addConstraint(Sketcher.Constraint("DistanceX", -1, 1, 6, 2, 44.6981))
sketch3.addConstraint(Sketcher.Constraint("DistanceX", -1, 1, 10, 2, 43.420401))
sketch3.addConstraint(Sketcher.Constraint("Distance", 13, 6.300888))
sketch3.addConstraint(Sketcher.Constraint("Distance", 14, 2.49524))
sketch3.addConstraint(Sketcher.Constraint("Distance", 24, 18.413938))
sketch3.addConstraint(Sketcher.Constraint("DistanceX", -1, 1, 1, 3, 30.027442))
sketch3.addConstraint(Sketcher.Constraint("DistanceY", 1, 3, -1, 1, 60.00417))
sketch3.addConstraint(Sketcher.Constraint("DistanceX", -1, 1, 2, 3, 33.796251))
sketch3.addConstraint(Sketcher.Constraint("DistanceY", 3, 3, -1, 1, 60.999011))
sketch3.addConstraint(Sketcher.Constraint("DistanceX", -1, 1, 4, 3, 42.891418))
sketch3.addConstraint(Sketcher.Constraint("DistanceY", 5, 3, -1, 1, 57.21733))
sketch3.addConstraint(Sketcher.Constraint("DistanceX", -1, 1, 8, 3, 41.990081))
sketch3.addConstraint(Sketcher.Constraint("DistanceY", 8, 3, -1, 1, 45.754928))
sketch3.addConstraint(Sketcher.Constraint("DistanceX", -1, 1, 10, 3, 41.363991))
sketch3.addConstraint(Sketcher.Constraint("DistanceY", 16, 3, -1, 1, 27.827642))
sketch3.addConstraint(Sketcher.Constraint("DistanceY", 17, 3, -1, 1, 29.346518))
sketch3.addConstraint(Sketcher.Constraint("DistanceX", -1, 1, 18, 3, 31.70841))
sketch3.addConstraint(Sketcher.Constraint("DistanceX", -1, 1, 19, 3, 30.316709))
sketch3.addConstraint(Sketcher.Constraint("DistanceY", 19, 3, -1, 1, 32.818848))
sketch3.addConstraint(Sketcher.Constraint("DistanceX", -1, 1, 20, 3, 26.335732))
sketch3.addConstraint(Sketcher.Constraint("DistanceX", -1, 1, 21, 3, 23.576809))
sketch3.addConstraint(Sketcher.Constraint("DistanceX", -1, 1, 0, 2, 28.218679))
sketch3.addConstraint(Sketcher.Constraint("DistanceY", 5, 2, -1, 1, 55.723039))
sketch3.addConstraint(Sketcher.Constraint("DistanceX", -1, 1, 9, 2, 44.331189))
sketch3.addConstraint(Sketcher.Constraint("DistanceX", -1, 1, 11, 2, 43.011658))
sketch3.addConstraint(Sketcher.Constraint("DistanceY", 11, 2, -1, 1, 30.95929))
sketch3.addConstraint(Sketcher.Constraint("DistanceY", 13, 2, -1, 1, 22.653559))
sketch3.addConstraint(Sketcher.Constraint("DistanceY", 16, 2, -1, 1, 26.860839))
sketch3.addConstraint(Sketcher.Constraint("DistanceX", -1, 1, 18, 2, 29.511619))
sketch3.addConstraint(Sketcher.Constraint("DistanceY", 19, 2, -1, 1, 33.623939))
sketch3.addConstraint(Sketcher.Constraint("DistanceY", 21, 2, -1, 1, 37.438119))
sketch3.addConstraint(Sketcher.Constraint("DistanceX", -1, 1, 23, 2, 12.250541))
sketch3.addConstraint(Sketcher.Constraint("DistanceX", -1, 1, 3, 3, 38.347998))
sketch3.addConstraint(Sketcher.Constraint("DistanceX", -1, 1, 5, 3, 43.416045))
sketch3.addConstraint(Sketcher.Constraint("DistanceX", -1, 1, 6, 3, 42.541604))
sketch3.addConstraint(Sketcher.Constraint("DistanceX", -1, 1, 7, 3, 42.736213))
sketch3.addConstraint(Sketcher.Constraint("DistanceX", -1, 1, 9, 3, 42.353513))
sketch3.addConstraint(Sketcher.Constraint("DistanceX", -1, 1, 12, 3, 40.941086))
sketch3.addConstraint(Sketcher.Constraint("DistanceX", -1, 1, 16, 3, 38.076932))
pad2 = body.newObject("PartDesign::Pad", "Pad001")
pad2.Profile = sketch3
pad2.setExpression("Length", "Params.pad2_length")
pad2.Midplane = True

doc.recompute()
